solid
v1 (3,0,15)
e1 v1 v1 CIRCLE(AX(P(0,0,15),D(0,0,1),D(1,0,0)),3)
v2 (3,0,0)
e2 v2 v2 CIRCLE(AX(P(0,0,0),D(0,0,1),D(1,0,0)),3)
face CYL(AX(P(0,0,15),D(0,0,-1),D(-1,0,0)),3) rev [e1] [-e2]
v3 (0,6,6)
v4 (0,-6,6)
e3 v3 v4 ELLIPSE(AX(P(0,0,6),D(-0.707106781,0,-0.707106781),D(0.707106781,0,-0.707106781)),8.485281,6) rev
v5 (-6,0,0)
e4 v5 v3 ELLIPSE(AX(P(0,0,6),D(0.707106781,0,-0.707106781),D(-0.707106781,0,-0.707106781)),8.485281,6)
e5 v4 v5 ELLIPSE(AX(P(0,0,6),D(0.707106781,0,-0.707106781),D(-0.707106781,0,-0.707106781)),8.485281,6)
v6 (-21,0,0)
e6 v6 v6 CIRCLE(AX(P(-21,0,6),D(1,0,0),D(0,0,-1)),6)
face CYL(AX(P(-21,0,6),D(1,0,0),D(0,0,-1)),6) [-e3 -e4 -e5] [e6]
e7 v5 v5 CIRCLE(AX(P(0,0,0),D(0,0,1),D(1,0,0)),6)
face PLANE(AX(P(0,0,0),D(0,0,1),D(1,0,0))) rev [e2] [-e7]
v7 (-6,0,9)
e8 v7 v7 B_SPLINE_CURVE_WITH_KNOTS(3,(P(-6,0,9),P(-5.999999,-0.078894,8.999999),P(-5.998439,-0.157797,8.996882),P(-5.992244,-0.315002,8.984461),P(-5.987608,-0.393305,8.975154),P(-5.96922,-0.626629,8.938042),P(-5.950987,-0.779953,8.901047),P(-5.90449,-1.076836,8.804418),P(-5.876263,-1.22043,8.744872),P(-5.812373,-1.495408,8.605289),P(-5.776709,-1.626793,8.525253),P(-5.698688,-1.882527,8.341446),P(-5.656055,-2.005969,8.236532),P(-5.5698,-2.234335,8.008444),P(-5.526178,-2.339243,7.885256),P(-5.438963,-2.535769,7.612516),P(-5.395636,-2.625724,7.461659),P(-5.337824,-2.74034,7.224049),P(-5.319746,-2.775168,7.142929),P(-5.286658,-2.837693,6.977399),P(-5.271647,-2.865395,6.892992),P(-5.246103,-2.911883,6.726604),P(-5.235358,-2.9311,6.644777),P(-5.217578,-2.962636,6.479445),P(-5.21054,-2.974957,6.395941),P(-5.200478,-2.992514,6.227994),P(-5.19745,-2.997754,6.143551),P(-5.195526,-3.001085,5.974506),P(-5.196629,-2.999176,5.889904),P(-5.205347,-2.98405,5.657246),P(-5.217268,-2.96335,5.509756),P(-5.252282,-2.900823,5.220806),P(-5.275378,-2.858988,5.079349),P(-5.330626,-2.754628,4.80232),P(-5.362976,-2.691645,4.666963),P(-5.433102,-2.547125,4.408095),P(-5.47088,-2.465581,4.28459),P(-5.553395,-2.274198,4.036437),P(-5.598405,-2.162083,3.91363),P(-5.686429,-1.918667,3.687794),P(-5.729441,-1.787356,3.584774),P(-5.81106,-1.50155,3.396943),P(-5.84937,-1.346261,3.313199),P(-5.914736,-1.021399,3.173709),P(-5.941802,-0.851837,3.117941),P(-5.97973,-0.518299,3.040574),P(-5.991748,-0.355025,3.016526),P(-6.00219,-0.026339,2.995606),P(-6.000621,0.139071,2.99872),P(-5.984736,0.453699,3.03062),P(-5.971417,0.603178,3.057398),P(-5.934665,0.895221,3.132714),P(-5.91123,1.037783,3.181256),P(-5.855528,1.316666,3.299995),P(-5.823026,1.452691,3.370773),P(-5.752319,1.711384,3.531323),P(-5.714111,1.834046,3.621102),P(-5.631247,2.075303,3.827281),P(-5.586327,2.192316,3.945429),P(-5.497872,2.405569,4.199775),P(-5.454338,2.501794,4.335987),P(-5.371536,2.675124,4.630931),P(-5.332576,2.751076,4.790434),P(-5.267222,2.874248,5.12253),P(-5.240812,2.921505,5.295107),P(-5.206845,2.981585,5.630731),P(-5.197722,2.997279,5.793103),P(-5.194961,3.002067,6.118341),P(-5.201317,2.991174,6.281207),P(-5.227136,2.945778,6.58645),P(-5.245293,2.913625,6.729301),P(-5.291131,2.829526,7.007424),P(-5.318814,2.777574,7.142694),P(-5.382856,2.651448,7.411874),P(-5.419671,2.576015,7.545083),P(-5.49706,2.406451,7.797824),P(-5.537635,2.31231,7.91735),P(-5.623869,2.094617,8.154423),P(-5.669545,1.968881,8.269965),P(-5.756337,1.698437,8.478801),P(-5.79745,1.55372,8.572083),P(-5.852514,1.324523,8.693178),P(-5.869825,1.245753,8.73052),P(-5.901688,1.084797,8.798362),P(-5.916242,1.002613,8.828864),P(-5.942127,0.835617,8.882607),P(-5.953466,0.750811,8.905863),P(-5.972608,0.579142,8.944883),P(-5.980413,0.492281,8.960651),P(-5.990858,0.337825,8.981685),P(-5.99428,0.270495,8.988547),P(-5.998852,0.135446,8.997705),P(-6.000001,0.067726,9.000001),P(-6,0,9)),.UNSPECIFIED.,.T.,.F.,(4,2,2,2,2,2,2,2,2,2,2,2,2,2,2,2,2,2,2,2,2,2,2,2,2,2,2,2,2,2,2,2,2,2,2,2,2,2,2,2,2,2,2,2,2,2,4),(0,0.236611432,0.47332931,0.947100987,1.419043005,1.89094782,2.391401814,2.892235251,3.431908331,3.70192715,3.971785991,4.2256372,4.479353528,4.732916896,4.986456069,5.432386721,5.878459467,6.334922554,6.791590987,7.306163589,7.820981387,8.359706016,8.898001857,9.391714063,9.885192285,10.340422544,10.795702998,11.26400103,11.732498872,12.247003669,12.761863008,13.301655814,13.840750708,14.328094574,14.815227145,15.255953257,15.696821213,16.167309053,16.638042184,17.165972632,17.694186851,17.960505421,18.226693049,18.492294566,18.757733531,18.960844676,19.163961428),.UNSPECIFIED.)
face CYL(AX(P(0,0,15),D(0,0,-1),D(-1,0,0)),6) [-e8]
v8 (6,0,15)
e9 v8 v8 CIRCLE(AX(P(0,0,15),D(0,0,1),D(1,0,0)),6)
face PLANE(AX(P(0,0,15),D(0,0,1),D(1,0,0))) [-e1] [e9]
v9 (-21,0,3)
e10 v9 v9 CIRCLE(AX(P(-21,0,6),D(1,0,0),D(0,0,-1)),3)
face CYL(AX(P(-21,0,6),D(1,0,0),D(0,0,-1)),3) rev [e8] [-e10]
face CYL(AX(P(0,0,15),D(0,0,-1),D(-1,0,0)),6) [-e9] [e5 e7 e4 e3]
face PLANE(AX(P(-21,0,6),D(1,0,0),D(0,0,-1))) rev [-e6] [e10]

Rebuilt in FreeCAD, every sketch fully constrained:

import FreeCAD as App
import Part
import Sketcher
from FreeCAD import Vector
Q = App.Units.Quantity

doc = App.newDocument("Part")
body = doc.addObject("PartDesign::Body", "Body")

# Sketch on XY plane
sketch1 = body.newObject("Sketcher::SketchObject", "Sketch")
sketch1.AttachmentSupport = (doc.getObject("XY_Plane"), [""])
sketch1.MapMode = "FlatFace"
sketch1.addGeometry([
    Part.Circle(Vector(0, 0, 0), Vector(0, 0, 1), 6),
    Part.Circle(Vector(0, 0, 0), Vector(0, 0, 1), 3),
], False)
sketch1.addConstraint([
    Sketcher.Constraint("Coincident", 0, 3, -1, 1),
    Sketcher.Constraint("Coincident", 1, 3, -1, 1),
    Sketcher.Constraint("Diameter", 0, Q("12 mm")),
    Sketcher.Constraint("Diameter", 1, Q("6 mm")),
])
pad1 = body.newObject("PartDesign::Pad", "Pad")
pad1.Profile = sketch1
pad1.Length = 15

# Sketch on YZ plane
sketch2 = body.newObject("Sketcher::SketchObject", "Sketch001")
sketch2.AttachmentSupport = (doc.getObject("YZ_Plane"), [""])
sketch2.MapMode = "FlatFace"
sketch2.addGeometry([
    Part.Circle(Vector(0, 6, 0), Vector(0, 0, 1), 6),
    Part.Circle(Vector(0, 6, 0), Vector(0, 0, 1), 3),
], False)
sketch2.addConstraint([
    Sketcher.Constraint("Coincident", 1, 3, 0, 3),
    Sketcher.Constraint("PointOnObject", 0, 3, -2),
    Sketcher.Constraint("Diameter", 0, Q("12 mm")),
    Sketcher.Constraint("Diameter", 1, Q("6 mm")),
    Sketcher.Constraint("DistanceY", -1, 1, 0, 3, Q("6 mm")),
])
pad2 = body.newObject("PartDesign::Pad", "Pad001")
pad2.Profile = sketch2
pad2.Length = 21
pad2.Reversed = True

# Sketch on XY plane
sketch3 = body.newObject("Sketcher::SketchObject", "Sketch002")
sketch3.AttachmentSupport = (doc.getObject("XY_Plane"), [""])
sketch3.MapMode = "FlatFace"
sketch3.addGeometry(Part.Circle(Vector(0, 0, 0), Vector(0, 0, 1), 3), False)
sketch3.addConstraint([
    Sketcher.Constraint("Coincident", 0, 3, -1, 1),
    Sketcher.Constraint("Diameter", 0, Q("6 mm")),
])
pocket1 = body.newObject("PartDesign::Pocket", "Pocket")
pocket1.Profile = sketch3
pocket1.Type = "ThroughAll"
pocket1.Reversed = True

doc.recompute()
